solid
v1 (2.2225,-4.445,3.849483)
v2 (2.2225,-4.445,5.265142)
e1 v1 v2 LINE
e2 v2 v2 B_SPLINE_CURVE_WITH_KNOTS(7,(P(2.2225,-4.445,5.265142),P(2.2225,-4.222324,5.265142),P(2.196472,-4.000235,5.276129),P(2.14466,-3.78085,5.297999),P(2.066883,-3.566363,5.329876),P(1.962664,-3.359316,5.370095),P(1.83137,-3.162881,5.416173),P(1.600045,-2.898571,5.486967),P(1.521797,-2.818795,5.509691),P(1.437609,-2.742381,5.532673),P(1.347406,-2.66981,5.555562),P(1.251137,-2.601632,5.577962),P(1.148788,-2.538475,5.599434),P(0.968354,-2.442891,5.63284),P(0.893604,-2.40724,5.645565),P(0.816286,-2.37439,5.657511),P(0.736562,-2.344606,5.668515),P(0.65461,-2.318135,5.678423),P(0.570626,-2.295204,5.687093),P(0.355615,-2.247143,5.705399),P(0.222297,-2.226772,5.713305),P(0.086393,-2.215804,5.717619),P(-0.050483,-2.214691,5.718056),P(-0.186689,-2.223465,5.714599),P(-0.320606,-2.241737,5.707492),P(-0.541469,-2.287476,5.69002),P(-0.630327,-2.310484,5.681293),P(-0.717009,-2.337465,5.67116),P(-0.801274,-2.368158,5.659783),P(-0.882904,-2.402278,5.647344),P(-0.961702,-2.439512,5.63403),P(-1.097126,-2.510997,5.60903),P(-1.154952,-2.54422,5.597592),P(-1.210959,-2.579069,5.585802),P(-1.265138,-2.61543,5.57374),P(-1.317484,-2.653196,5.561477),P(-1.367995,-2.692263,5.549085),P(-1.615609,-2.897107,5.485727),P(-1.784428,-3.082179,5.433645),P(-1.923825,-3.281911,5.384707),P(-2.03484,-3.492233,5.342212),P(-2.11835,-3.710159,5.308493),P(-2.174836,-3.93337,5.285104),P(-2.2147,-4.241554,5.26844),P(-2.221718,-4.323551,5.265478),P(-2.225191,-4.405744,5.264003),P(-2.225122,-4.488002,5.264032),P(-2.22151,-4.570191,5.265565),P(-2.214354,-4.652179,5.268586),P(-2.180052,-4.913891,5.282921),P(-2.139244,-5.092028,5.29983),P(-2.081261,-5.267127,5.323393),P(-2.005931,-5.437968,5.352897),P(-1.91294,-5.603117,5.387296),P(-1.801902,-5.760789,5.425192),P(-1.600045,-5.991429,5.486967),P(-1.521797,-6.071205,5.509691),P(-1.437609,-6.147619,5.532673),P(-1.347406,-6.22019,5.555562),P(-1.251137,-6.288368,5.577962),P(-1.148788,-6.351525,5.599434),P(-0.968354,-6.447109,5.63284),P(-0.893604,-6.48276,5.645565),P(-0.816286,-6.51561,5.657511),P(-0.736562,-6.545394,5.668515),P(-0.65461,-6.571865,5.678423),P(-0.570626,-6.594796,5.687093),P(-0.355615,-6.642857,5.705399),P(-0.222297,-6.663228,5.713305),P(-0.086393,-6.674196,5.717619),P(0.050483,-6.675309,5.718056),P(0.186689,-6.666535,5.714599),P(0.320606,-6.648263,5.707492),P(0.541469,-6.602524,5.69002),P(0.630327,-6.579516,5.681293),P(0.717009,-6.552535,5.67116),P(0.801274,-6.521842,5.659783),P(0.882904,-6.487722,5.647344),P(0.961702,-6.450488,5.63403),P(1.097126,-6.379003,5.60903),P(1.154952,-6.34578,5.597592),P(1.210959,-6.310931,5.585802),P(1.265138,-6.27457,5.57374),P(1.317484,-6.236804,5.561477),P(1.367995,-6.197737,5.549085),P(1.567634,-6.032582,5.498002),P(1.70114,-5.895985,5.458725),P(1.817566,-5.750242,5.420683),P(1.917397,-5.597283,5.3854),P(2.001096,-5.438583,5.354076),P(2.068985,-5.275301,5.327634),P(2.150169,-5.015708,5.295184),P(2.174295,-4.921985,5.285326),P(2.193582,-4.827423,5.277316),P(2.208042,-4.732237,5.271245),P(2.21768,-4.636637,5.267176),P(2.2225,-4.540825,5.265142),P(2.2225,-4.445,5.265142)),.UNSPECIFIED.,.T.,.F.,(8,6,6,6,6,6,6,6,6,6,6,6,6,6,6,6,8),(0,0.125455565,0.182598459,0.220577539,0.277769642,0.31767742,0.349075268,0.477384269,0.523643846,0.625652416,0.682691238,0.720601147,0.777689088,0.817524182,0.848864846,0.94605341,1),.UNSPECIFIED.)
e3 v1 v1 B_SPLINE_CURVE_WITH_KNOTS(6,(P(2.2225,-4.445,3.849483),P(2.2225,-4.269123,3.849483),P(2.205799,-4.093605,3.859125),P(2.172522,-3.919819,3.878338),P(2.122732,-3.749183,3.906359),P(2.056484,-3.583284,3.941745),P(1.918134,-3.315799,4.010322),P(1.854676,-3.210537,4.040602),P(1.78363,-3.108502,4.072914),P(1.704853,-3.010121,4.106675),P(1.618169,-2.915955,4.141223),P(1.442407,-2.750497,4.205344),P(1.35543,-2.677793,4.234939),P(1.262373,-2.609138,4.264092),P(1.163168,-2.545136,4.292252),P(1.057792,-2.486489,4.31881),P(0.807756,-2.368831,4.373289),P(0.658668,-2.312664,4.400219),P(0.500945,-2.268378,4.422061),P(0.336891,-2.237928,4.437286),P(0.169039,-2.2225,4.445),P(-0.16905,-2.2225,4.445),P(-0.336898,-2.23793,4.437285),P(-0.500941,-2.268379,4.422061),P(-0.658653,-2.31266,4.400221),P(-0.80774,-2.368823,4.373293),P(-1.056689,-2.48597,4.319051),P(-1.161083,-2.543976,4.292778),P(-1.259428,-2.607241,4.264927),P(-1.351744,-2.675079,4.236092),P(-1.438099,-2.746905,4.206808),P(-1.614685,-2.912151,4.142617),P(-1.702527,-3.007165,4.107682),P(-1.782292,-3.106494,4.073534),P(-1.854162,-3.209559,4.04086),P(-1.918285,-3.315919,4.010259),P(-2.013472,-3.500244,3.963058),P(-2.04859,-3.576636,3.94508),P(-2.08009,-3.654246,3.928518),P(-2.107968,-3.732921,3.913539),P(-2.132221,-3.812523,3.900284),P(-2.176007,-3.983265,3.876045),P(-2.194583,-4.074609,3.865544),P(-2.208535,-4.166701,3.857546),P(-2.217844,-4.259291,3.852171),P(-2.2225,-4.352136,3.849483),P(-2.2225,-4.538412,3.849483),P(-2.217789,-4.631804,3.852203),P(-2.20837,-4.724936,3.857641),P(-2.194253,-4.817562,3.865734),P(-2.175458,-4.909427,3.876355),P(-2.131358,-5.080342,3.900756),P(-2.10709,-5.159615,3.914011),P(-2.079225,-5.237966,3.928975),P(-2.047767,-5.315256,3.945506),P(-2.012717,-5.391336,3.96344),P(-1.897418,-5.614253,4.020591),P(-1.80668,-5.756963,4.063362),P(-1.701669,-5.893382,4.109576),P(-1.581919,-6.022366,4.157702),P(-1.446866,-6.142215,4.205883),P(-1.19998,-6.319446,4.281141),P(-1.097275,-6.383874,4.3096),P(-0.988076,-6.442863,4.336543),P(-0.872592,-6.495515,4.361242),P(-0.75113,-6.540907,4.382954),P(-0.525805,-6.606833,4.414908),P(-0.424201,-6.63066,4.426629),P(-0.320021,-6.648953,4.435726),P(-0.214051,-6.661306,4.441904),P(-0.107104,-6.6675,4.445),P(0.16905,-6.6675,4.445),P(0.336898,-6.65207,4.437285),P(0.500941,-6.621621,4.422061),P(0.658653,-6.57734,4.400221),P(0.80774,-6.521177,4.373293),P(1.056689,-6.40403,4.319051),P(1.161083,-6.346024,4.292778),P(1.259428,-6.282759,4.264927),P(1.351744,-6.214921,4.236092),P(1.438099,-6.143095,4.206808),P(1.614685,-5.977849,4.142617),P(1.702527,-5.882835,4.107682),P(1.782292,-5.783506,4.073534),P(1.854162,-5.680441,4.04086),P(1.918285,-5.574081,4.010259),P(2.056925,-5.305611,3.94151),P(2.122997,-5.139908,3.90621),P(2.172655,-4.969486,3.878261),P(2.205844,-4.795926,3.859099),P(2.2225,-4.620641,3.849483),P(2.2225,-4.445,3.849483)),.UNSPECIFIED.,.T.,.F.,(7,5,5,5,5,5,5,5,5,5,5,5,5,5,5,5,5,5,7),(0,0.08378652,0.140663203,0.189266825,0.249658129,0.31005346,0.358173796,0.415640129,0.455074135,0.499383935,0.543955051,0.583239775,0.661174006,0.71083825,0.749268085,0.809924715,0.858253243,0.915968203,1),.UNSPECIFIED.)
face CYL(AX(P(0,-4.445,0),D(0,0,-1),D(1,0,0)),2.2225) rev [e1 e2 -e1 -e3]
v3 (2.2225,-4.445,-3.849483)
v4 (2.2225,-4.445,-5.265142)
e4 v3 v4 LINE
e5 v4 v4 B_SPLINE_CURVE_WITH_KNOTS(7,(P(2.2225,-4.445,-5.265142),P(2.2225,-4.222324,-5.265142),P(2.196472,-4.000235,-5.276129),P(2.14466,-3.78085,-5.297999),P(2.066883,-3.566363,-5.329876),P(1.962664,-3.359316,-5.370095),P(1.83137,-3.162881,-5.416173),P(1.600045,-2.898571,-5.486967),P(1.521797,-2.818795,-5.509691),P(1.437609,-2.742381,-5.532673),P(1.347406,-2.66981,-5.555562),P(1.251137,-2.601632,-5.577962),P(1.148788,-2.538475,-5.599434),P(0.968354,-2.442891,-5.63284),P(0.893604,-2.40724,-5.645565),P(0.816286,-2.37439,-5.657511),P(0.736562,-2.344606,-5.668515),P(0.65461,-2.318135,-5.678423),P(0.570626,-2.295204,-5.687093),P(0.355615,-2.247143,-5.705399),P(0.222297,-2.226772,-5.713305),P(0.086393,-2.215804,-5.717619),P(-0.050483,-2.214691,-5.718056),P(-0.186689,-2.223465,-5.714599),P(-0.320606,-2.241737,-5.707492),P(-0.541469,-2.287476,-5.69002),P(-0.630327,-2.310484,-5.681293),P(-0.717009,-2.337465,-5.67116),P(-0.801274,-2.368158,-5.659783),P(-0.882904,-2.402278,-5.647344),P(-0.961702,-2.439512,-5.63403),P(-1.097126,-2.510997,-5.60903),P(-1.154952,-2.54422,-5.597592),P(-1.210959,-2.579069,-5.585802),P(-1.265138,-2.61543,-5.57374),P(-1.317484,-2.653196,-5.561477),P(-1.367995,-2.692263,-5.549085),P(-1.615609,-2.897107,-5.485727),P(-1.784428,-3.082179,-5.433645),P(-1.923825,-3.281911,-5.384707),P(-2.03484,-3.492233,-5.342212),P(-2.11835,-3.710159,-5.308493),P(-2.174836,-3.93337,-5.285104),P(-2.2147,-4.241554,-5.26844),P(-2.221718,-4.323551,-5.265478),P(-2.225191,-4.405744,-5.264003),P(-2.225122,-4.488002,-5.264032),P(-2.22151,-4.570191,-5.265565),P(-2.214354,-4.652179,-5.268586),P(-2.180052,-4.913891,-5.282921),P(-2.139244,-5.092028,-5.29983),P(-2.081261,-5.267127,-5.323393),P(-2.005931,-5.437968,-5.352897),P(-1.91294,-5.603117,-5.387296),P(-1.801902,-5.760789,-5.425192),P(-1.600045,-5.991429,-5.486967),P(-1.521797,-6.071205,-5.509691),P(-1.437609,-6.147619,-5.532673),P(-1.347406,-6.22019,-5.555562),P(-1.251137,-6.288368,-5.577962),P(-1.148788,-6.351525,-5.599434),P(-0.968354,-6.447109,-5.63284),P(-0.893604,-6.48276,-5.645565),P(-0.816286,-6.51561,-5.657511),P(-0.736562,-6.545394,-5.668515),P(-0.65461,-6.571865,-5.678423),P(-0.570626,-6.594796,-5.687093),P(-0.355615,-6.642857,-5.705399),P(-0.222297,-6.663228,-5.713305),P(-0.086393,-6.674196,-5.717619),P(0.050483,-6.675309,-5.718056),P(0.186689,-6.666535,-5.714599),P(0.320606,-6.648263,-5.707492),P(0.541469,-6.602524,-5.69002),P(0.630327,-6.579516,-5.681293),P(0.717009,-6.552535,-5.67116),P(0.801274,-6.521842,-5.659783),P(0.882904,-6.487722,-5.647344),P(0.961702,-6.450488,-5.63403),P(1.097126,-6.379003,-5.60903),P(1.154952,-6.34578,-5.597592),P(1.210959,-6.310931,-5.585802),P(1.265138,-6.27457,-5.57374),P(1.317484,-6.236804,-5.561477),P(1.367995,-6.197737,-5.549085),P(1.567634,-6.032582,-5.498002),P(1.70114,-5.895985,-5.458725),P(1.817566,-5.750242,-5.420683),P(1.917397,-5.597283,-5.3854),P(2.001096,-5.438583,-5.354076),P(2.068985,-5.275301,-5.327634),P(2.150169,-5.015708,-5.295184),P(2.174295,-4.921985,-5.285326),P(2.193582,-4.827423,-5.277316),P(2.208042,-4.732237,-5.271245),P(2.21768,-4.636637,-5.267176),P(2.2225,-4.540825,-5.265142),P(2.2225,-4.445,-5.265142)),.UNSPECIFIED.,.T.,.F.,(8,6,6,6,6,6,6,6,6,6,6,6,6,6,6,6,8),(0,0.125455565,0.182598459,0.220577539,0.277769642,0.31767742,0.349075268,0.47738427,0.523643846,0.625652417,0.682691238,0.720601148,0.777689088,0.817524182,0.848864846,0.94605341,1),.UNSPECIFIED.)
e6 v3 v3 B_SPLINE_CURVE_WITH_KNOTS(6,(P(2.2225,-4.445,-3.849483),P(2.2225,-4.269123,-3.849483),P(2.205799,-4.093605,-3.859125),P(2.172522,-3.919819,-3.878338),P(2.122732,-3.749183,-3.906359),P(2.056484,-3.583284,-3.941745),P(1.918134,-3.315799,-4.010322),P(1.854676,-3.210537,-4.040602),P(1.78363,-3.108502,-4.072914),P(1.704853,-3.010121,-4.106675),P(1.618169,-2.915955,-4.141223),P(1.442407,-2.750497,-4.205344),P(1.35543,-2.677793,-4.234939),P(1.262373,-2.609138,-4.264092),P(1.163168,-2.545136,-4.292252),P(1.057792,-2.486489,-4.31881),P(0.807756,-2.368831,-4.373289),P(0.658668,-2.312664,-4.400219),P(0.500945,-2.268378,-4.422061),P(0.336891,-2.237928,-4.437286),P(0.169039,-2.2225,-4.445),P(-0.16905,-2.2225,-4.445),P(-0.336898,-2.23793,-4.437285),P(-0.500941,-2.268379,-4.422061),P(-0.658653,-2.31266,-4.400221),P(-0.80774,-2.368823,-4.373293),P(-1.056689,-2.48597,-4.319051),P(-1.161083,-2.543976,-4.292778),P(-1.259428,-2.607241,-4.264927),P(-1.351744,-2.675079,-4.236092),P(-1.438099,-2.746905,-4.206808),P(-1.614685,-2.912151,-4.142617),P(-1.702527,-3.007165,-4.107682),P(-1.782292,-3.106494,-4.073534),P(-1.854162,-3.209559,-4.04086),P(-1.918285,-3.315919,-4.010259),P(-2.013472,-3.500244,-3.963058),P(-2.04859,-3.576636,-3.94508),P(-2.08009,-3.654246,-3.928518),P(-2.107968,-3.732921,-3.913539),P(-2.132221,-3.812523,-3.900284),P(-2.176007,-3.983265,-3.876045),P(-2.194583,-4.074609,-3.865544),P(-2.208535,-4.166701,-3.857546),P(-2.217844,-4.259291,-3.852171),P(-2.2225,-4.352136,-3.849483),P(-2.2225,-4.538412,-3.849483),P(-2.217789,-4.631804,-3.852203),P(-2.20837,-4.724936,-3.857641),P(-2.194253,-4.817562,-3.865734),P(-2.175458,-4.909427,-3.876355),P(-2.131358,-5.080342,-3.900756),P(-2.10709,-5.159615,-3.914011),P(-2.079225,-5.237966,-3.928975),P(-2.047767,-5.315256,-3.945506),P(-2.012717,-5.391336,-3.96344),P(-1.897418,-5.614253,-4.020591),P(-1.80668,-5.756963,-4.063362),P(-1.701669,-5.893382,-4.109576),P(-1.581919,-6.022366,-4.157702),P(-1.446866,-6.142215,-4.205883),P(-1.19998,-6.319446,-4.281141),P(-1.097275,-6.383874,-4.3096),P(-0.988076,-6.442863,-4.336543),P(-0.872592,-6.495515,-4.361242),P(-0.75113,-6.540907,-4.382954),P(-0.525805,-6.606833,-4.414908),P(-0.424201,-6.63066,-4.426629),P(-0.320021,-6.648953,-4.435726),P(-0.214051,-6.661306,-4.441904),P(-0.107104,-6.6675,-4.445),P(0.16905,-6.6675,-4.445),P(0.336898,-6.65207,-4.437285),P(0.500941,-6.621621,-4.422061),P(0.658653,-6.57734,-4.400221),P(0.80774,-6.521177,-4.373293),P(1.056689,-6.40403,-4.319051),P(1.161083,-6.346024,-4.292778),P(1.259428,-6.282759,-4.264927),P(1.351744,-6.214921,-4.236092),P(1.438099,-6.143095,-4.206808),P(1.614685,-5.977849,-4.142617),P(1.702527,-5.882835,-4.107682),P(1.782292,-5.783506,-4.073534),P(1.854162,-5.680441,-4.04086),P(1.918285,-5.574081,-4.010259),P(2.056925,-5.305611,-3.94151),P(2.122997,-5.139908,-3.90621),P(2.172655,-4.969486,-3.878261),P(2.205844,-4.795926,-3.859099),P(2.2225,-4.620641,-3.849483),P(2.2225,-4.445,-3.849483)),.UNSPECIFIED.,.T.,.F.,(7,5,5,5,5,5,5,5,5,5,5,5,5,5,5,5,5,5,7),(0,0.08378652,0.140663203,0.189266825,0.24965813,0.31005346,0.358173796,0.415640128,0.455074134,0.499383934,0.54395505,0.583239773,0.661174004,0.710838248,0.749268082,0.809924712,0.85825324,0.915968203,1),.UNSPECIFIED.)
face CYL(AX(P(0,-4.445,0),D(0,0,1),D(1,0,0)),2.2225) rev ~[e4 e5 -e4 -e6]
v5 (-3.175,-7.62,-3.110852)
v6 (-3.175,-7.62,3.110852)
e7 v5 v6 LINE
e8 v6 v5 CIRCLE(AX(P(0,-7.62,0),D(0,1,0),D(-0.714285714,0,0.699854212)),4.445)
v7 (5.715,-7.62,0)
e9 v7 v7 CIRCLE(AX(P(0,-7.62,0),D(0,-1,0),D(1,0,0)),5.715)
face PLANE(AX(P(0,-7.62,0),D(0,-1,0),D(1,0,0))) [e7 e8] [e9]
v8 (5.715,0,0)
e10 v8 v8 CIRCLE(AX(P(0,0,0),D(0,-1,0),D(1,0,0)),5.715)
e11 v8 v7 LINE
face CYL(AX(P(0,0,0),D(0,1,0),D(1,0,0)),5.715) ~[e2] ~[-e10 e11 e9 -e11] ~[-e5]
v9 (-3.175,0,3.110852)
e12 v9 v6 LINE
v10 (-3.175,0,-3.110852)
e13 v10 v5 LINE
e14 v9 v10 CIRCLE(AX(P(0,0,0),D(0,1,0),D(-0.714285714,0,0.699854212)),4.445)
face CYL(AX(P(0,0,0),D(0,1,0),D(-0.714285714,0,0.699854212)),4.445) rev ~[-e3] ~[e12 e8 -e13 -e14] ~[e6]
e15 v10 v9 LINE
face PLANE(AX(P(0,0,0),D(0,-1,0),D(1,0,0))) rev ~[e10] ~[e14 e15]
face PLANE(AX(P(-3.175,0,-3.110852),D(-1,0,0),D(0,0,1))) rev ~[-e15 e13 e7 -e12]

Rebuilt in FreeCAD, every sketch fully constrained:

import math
import FreeCAD as App
import Part
import Sketcher

V = App.Vector
Q = App.Units.Quantity

doc = App.newDocument("Part")
body = doc.addObject("PartDesign::Body", "Body")

sketch1 = doc.addObject("Sketcher::SketchObject", "Sketch")
body.addObject(sketch1)
sketch1.AttachmentSupport = (doc.XZ_Plane, [""])
sketch1.MapMode = "FlatFace"
sketch1.addGeometry([
    Part.Circle(V(0, 0, 0), V(0, 0, 1), 5.7),
    Part.LineSegment(V(-3.2, -3.1, 0), V(-3.2, 3.1, 0)),
    Part.ArcOfCircle(Part.Circle(V(0, 0, 0), V(0, 0, 1), 4.4), math.radians(-136), math.radians(136)),
], False)
sketch1.addConstraint([
    Sketcher.Constraint("Coincident", 1, 1, 2, 1),
    Sketcher.Constraint("Coincident", 2, 2, 1, 2),
    Sketcher.Constraint("Vertical", 1),
    Sketcher.Constraint("Coincident", 0, 3, -1, 1),
    Sketcher.Constraint("Coincident", 2, 3, -1, 1),
    Sketcher.Constraint("Diameter", 0, Q("0.45 in")),
    Sketcher.Constraint("Radius", 2, Q("0.175 in")),
    Sketcher.Constraint("DistanceX", 1, 1, -1, 1, Q("0.125 in")),
])
pad1 = doc.addObject("PartDesign::Pad", "Pad")
body.addObject(pad1)
pad1.Profile = sketch1
pad1.Length = Q("0.3 in")

sketch2 = doc.addObject("Sketcher::SketchObject", "Sketch001")
body.addObject(sketch2)
sketch2.AttachmentSupport = (doc.XY_Plane, [""])
sketch2.MapMode = "FlatFace"
sketch2.addGeometry(Part.Circle(V(0, -4.4, 0), V(0, 0, 1), 2.2), False)
sketch2.addConstraint([
    Sketcher.Constraint("PointOnObject", 0, 3, -2),
    Sketcher.Constraint("Diameter", 0, Q("0.175 in")),
    Sketcher.Constraint("DistanceY", 0, 3, -1, 1, Q("0.175 in")),
])
pocket1 = doc.addObject("PartDesign::Pocket", "Pocket")
body.addObject(pocket1)
pocket1.Profile = sketch2
pocket1.Type = "ThroughAll"
pocket1.Midplane = True

doc.recompute()
